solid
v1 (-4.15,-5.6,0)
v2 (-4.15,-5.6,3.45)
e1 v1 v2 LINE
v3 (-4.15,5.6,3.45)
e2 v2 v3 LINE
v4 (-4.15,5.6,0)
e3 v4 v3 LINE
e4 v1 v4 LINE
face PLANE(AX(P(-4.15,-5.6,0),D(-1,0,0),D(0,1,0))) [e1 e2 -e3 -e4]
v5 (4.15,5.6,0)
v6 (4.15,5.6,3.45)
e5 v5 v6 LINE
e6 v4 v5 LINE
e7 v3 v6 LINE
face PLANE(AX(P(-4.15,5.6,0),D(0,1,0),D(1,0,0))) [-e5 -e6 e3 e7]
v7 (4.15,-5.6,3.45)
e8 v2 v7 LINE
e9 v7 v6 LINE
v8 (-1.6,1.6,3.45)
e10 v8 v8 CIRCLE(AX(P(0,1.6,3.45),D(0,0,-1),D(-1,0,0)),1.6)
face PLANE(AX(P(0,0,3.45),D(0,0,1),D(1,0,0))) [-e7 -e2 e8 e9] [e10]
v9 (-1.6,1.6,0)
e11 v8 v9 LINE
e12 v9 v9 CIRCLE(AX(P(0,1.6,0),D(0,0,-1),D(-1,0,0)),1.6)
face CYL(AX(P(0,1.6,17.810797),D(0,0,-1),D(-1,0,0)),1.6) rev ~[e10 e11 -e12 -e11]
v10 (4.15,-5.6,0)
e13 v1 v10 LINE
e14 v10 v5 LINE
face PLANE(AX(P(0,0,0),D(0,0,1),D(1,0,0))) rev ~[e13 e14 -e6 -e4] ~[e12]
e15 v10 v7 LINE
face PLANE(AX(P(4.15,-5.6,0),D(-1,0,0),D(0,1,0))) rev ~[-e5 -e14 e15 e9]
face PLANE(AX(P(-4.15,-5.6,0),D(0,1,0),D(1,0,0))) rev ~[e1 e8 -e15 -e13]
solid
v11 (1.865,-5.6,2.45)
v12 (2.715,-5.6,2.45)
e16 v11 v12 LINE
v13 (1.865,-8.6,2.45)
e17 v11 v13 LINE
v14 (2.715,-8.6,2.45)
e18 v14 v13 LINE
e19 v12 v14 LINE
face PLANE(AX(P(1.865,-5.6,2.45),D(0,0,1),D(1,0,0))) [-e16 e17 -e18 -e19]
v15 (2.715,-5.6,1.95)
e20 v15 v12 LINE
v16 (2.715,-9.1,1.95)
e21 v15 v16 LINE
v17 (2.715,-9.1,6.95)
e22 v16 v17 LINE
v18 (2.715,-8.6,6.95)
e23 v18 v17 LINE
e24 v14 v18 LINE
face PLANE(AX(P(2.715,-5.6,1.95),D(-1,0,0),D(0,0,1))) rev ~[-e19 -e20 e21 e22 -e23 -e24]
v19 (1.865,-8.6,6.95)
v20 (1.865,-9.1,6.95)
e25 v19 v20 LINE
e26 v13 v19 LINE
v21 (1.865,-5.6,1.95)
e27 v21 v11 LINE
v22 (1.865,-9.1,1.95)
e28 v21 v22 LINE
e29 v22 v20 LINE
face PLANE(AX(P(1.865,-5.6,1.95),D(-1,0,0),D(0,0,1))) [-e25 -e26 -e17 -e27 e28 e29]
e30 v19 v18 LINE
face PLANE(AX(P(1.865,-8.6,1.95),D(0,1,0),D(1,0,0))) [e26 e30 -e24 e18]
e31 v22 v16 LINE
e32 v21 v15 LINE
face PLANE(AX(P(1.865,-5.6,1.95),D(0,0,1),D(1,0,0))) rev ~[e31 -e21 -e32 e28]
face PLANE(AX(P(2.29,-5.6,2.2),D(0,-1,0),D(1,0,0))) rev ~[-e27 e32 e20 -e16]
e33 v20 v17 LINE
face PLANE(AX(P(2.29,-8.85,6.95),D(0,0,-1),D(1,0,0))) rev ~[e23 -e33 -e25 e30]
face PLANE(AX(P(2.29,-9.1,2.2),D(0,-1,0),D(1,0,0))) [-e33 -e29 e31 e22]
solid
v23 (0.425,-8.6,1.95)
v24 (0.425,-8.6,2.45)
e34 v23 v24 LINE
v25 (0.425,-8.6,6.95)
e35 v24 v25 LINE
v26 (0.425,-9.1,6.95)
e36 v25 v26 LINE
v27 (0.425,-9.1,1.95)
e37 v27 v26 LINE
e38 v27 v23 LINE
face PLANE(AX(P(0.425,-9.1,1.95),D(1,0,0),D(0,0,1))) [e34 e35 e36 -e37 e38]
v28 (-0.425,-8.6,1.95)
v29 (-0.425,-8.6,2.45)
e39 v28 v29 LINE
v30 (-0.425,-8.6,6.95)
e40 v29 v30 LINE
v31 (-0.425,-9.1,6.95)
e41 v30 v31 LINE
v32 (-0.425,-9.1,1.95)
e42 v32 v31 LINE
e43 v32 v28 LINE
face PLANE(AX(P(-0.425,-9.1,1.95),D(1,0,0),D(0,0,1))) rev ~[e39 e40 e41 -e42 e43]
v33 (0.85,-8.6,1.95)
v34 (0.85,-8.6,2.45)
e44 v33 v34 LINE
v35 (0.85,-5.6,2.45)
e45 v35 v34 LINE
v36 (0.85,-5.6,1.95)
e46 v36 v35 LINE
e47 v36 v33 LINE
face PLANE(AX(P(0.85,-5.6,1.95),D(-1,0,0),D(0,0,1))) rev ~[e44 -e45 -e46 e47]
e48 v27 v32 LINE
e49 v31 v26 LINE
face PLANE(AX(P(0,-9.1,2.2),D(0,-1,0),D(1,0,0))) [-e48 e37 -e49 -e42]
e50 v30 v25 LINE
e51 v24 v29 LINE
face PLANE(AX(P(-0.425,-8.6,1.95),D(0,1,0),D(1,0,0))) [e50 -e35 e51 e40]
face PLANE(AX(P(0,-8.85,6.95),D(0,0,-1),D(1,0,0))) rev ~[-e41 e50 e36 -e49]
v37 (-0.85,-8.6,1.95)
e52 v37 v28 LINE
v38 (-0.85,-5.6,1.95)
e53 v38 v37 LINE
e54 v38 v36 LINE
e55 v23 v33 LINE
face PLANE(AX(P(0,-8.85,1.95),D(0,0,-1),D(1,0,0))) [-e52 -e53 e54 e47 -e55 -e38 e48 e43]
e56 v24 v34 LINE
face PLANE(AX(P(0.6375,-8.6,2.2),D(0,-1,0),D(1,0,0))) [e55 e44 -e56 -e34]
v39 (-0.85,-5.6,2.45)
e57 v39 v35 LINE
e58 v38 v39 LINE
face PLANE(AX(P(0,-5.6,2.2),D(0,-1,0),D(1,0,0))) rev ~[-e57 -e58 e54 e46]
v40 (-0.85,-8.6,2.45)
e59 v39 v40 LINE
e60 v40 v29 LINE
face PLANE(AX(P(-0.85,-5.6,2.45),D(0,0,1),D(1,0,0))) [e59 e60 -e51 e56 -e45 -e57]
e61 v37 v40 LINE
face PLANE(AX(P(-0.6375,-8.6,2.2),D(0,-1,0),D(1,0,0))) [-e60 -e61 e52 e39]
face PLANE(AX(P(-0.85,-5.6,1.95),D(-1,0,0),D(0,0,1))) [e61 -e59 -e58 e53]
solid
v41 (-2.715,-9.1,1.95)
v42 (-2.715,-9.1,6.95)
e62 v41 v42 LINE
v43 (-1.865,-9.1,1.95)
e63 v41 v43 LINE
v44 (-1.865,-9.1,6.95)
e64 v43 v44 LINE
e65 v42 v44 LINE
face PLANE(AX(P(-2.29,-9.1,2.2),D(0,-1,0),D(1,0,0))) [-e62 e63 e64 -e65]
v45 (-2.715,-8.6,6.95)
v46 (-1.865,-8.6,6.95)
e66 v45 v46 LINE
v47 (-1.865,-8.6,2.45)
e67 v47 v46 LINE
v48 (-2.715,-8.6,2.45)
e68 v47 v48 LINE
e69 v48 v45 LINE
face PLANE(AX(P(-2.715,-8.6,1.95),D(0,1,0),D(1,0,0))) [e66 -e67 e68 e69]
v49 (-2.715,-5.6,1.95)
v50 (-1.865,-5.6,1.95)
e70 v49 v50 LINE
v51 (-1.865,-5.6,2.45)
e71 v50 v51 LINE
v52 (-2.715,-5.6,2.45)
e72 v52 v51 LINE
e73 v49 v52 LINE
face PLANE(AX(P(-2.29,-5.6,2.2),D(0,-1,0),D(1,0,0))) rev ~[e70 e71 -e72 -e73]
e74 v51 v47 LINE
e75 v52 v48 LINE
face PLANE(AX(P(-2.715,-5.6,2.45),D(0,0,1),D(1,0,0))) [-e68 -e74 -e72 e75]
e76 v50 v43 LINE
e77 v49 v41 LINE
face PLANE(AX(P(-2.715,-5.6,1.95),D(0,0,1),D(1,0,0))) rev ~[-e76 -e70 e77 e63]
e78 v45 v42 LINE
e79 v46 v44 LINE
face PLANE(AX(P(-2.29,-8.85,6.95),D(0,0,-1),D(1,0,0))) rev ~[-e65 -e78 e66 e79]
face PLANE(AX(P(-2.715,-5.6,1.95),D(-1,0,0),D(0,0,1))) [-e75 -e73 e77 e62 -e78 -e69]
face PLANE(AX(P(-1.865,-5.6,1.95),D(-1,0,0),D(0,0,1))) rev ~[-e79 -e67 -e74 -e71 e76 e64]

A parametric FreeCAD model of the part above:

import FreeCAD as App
import Part
import Sketcher

doc = App.newDocument("Part")
body = doc.addObject("PartDesign::Body", "Body")

# Sketch on XY plane
sketch1 = body.newObject("Sketcher::SketchObject", "Sketch")
sketch1.AttachmentSupport = (doc.getObject("XY_Plane"), [""])
sketch1.MapMode = "FlatFace"
sketch1.addGeometry([
    Part.LineSegment(App.Vector(-4, 6, 0), App.Vector(-4, -6, 0)),
    Part.LineSegment(App.Vector(-4, -6, 0), App.Vector(4, -6, 0)),
    Part.LineSegment(App.Vector(4, -6, 0), App.Vector(4, 6, 0)),
    Part.LineSegment(App.Vector(4, 6, 0), App.Vector(-4, 6, 0)),
], False)
sketch1.addConstraint([
    Sketcher.Constraint("Coincident", 0, 2, 1, 1),
    Sketcher.Constraint("Coincident", 1, 2, 2, 1),
    Sketcher.Constraint("Coincident", 2, 2, 3, 1),
    Sketcher.Constraint("Coincident", 3, 2, 0, 1),
    Sketcher.Constraint("Vertical", 0),
    Sketcher.Constraint("Horizontal", 1),
    Sketcher.Constraint("Vertical", 2),
    Sketcher.Constraint("Horizontal", 3),
    Sketcher.Constraint("Symmetric", 0, 2, 2, 2, -1, 1),
    Sketcher.Constraint("DistanceX", 1, 1, 1, 2, 8.3),
    Sketcher.Constraint("DistanceY", 0, 2, 0, 1, 11.2),
])
pad1 = body.newObject("PartDesign::Pad", "Pad")
pad1.Profile = sketch1
pad1.Length = 3.45

# Sketch on XY plane
sketch2 = body.newObject("Sketcher::SketchObject", "Sketch001")
sketch2.AttachmentSupport = (doc.getObject("XY_Plane"), [""])
sketch2.MapMode = "FlatFace"
sketch2.AttachmentOffset = App.Placement(App.Vector(0, 0, 3.45), App.Rotation())
sketch2.addGeometry(Part.Circle(App.Vector(0, 1.6, 0), App.Vector(0, 0, 1), 1.6), False)
sketch2.addConstraint([
    Sketcher.Constraint("PointOnObject", 0, 3, -2),
    Sketcher.Constraint("Diameter", 0, 3.2),
    Sketcher.Constraint("DistanceY", -1, 1, 0, 3, 1.6),
])
doc.recompute()
hole = body.newObject("PartDesign::Hole", "Hole")
hole.Profile = sketch2
hole.ThreadType = "None"
hole.Diameter = 3.2
hole.DepthType = "ThroughAll"
body2 = doc.addObject("PartDesign::Body", "Body001")
body2.AllowCompound = True

# Sketch on XZ plane
sketch3 = body2.newObject("Sketcher::SketchObject", "Sketch002")
sketch3.AttachmentSupport = (doc.getObject("XZ_Plane001"), [""])
sketch3.MapMode = "FlatFace"
sketch3.AttachmentOffset = App.Placement(App.Vector(0, 0, 5.6), App.Rotation())
sketch3.addGeometry([
    Part.LineSegment(App.Vector(-2.7, 2.5, 0), App.Vector(-2.7, 1.9, 0)),  # 0
    Part.LineSegment(App.Vector(-2.7, 1.9, 0), App.Vector(-1.9, 1.9, 0)),  # 1
    Part.LineSegment(App.Vector(-1.9, 1.9, 0), App.Vector(-1.9, 2.5, 0)),  # 2
    Part.LineSegment(App.Vector(-1.9, 2.5, 0), App.Vector(-2.7, 2.5, 0)),  # 3
    Part.LineSegment(App.Vector(-0.8, 2.5, 0), App.Vector(-0.8, 1.9, 0)),  # 4
    Part.LineSegment(App.Vector(-0.8, 1.9, 0), App.Vector(0.8, 1.9, 0)),  # 5
    Part.LineSegment(App.Vector(0.8, 1.9, 0), App.Vector(0.8, 2.5, 0)),  # 6
    Part.LineSegment(App.Vector(0.8, 2.5, 0), App.Vector(-0.8, 2.5, 0)),  # 7
    Part.LineSegment(App.Vector(1.9, 2.5, 0), App.Vector(1.9, 1.9, 0)),  # 8
    Part.LineSegment(App.Vector(1.9, 1.9, 0), App.Vector(2.7, 1.9, 0)),  # 9
    Part.LineSegment(App.Vector(2.7, 1.9, 0), App.Vector(2.7, 2.5, 0)),  # 10
    Part.LineSegment(App.Vector(2.7, 2.5, 0), App.Vector(1.9, 2.5, 0)),  # 11
], False)
sketch3.addConstraint([
    Sketcher.Constraint("Coincident", 0, 2, 1, 1),
    Sketcher.Constraint("Coincident", 1, 2, 2, 1),
    Sketcher.Constraint("Coincident", 2, 2, 3, 1),
    Sketcher.Constraint("Coincident", 3, 2, 0, 1),
    Sketcher.Constraint("Coincident", 4, 2, 5, 1),
    Sketcher.Constraint("Coincident", 5, 2, 6, 1),
    Sketcher.Constraint("Coincident", 6, 2, 7, 1),
    Sketcher.Constraint("Coincident", 7, 2, 4, 1),
    Sketcher.Constraint("Coincident", 8, 2, 9, 1),
    Sketcher.Constraint("Coincident", 9, 2, 10, 1),
    Sketcher.Constraint("Coincident", 10, 2, 11, 1),
    Sketcher.Constraint("Coincident", 11, 2, 8, 1),
    Sketcher.Constraint("Vertical", 0),
    Sketcher.Constraint("Horizontal", 1),
    Sketcher.Constraint("Vertical", 2),
    Sketcher.Constraint("Horizontal", 3),
    Sketcher.Constraint("Vertical", 4),
    Sketcher.Constraint("Horizontal", 5),
    Sketcher.Constraint("Vertical", 6),
    Sketcher.Constraint("Horizontal", 7),
    Sketcher.Constraint("Vertical", 8),
    Sketcher.Constraint("Horizontal", 9),
    Sketcher.Constraint("Vertical", 10),
    Sketcher.Constraint("Horizontal", 11),
    Sketcher.Constraint("Symmetric", 1, 2, 8, 2, -2),
    Sketcher.Constraint("Symmetric", 3, 2, 10, 2, -2),
    Sketcher.Constraint("Horizontal", 1, 2, 4, 2),
    Sketcher.Constraint("Horizontal", 3, 2, 6, 2),
    Sketcher.Constraint("DistanceX", 5, 1, 5, 2, 1.7),
    Sketcher.Constraint("DistanceY", 0, 2, 0, 1, 0.5),
    Sketcher.Constraint("DistanceX", 1, 1, 1, 2, 0.85),
    Sketcher.Constraint("DistanceY", -1, 1, 0, 2, 1.95),
    Sketcher.Constraint("DistanceX", 4, 2, -1, 1, 0.85),
    Sketcher.Constraint("DistanceX", 1, 2, 8, 2, 3.73),
])
pad2 = body2.newObject("PartDesign::Pad", "Pad001")
pad2.Profile = sketch3
pad2.Length = 3.5

# Sketch on XY plane
sketch4 = body2.newObject("Sketcher::SketchObject", "Sketch003")
sketch4.AttachmentSupport = (doc.getObject("XY_Plane001"), [""])
sketch4.MapMode = "FlatFace"
sketch4.AttachmentOffset = App.Placement(App.Vector(0, 0, 1.95), App.Rotation())
sketch4.addGeometry([
    Part.LineSegment(App.Vector(1.9, -9.1, 0), App.Vector(1.9, -8.6, 0)),  # 0
    Part.LineSegment(App.Vector(1.9, -8.6, 0), App.Vector(2.7, -8.6, 0)),  # 1
    Part.LineSegment(App.Vector(2.7, -8.6, 0), App.Vector(2.7, -9.1, 0)),  # 2
    Part.LineSegment(App.Vector(2.7, -9.1, 0), App.Vector(1.9, -9.1, 0)),  # 3
    Part.LineSegment(App.Vector(-0.4, -9.1, 0), App.Vector(-0.4, -8.6, 0)),  # 4
    Part.LineSegment(App.Vector(-0.4, -8.6, 0), App.Vector(0.4, -8.6, 0)),  # 5
    Part.LineSegment(App.Vector(0.4, -8.6, 0), App.Vector(0.4, -9.1, 0)),  # 6
    Part.LineSegment(App.Vector(0.4, -9.1, 0), App.Vector(-0.4, -9.1, 0)),  # 7
    Part.LineSegment(App.Vector(-2.7, -9.1, 0), App.Vector(-2.7, -8.6, 0)),  # 8
    Part.LineSegment(App.Vector(-2.7, -8.6, 0), App.Vector(-1.9, -8.6, 0)),  # 9
    Part.LineSegment(App.Vector(-1.9, -8.6, 0), App.Vector(-1.9, -9.1, 0)),  # 10
    Part.LineSegment(App.Vector(-1.9, -9.1, 0), App.Vector(-2.7, -9.1, 0)),  # 11
], False)
sketch4.addConstraint([
    Sketcher.Constraint("Coincident", 0, 2, 1, 1),
    Sketcher.Constraint("Coincident", 1, 2, 2, 1),
    Sketcher.Constraint("Coincident", 2, 2, 3, 1),
    Sketcher.Constraint("Coincident", 3, 2, 0, 1),
    Sketcher.Constraint("Coincident", 4, 2, 5, 1),
    Sketcher.Constraint("Coincident", 5, 2, 6, 1),
    Sketcher.Constraint("Coincident", 6, 2, 7, 1),
    Sketcher.Constraint("Coincident", 7, 2, 4, 1),
    Sketcher.Constraint("Coincident", 8, 2, 9, 1),
    Sketcher.Constraint("Coincident", 9, 2, 10, 1),
    Sketcher.Constraint("Coincident", 10, 2, 11, 1),
    Sketcher.Constraint("Coincident", 11, 2, 8, 1),
    Sketcher.Constraint("Vertical", 0),
    Sketcher.Constraint("Horizontal", 1),
    Sketcher.Constraint("Vertical", 2),
    Sketcher.Constraint("Horizontal", 3),
    Sketcher.Constraint("Vertical", 4),
    Sketcher.Constraint("Horizontal", 5),
    Sketcher.Constraint("Vertical", 6),
    Sketcher.Constraint("Horizontal", 7),
    Sketcher.Constraint("Vertical", 8),
    Sketcher.Constraint("Horizontal", 9),
    Sketcher.Constraint("Vertical", 10),
    Sketcher.Constraint("Horizontal", 11),
    Sketcher.Constraint("Symmetric", 1, 2, 8, 2, -2),
    Sketcher.Constraint("Symmetric", 3, 2, 10, 2, -2),
    Sketcher.Constraint("Horizontal", 1, 2, 4, 2),
    Sketcher.Constraint("Horizontal", 3, 2, 6, 2),
    Sketcher.Constraint("Equal", 3, 5),
    Sketcher.Constraint("DistanceY", 0, 1, 0, 2, 0.5),
    Sketcher.Constraint("DistanceX", 1, 1, 1, 2, 0.85),
    Sketcher.Constraint("DistanceY", 0, 2, -1, 1, 8.6),
    Sketcher.Constraint("DistanceX", 4, 2, 0, 2, 2.29),
    Sketcher.Constraint("DistanceX", 8, 2, 4, 2, 2.29),
])
pad3 = body2.newObject("PartDesign::Pad", "Pad002")
pad3.Profile = sketch4
pad3.Length = 5

# Sketch on XZ plane
sketch5 = body2.newObject("Sketcher::SketchObject", "Sketch004")
sketch5.AttachmentSupport = (doc.getObject("XZ_Plane001"), [""])
sketch5.MapMode = "FlatFace"
sketch5.AttachmentOffset = App.Placement(App.Vector(0, 0, 9.1), App.Rotation())
sketch5.addGeometry([
    Part.LineSegment(App.Vector(-0.85, 2.45, 0), App.Vector(-0.85, 1.95, 0)),  # 0
    Part.LineSegment(App.Vector(-0.85, 1.95, 0), App.Vector(-0.42, 1.95, 0)),  # 1
    Part.LineSegment(App.Vector(-0.42, 1.95, 0), App.Vector(-0.42, 2.45, 0)),  # 2
    Part.LineSegment(App.Vector(-0.42, 2.45, 0), App.Vector(-0.85, 2.45, 0)),  # 3
    Part.LineSegment(App.Vector(0.42, 2.45, 0), App.Vector(0.42, 1.95, 0)),  # 4
    Part.LineSegment(App.Vector(0.42, 1.95, 0), App.Vector(0.85, 1.95, 0)),  # 5
    Part.LineSegment(App.Vector(0.85, 1.95, 0), App.Vector(0.85, 2.45, 0)),  # 6
    Part.LineSegment(App.Vector(0.85, 2.45, 0), App.Vector(0.42, 2.45, 0)),  # 7
], False)
sketch5.addConstraint([
    Sketcher.Constraint("Coincident", 0, 2, 1, 1),
    Sketcher.Constraint("Coincident", 1, 2, 2, 1),
    Sketcher.Constraint("Coincident", 2, 2, 3, 1),
    Sketcher.Constraint("Coincident", 3, 2, 0, 1),
    Sketcher.Constraint("Coincident", 4, 2, 5, 1),
    Sketcher.Constraint("Coincident", 5, 2, 6, 1),
    Sketcher.Constraint("Coincident", 6, 2, 7, 1),
    Sketcher.Constraint("Coincident", 7, 2, 4, 1),
    Sketcher.Constraint("Vertical", 0),
    Sketcher.Constraint("Horizontal", 1),
    Sketcher.Constraint("Vertical", 2),
    Sketcher.Constraint("Horizontal", 3),
    Sketcher.Constraint("Vertical", 4),
    Sketcher.Constraint("Horizontal", 5),
    Sketcher.Constraint("Vertical", 6),
    Sketcher.Constraint("Horizontal", 7),
    Sketcher.Constraint("Symmetric", 1, 2, 4, 2, -2),
    Sketcher.Constraint("Symmetric", 3, 2, 6, 2, -2),
    Sketcher.Constraint("DistanceY", 0, 2, 0, 1, 0.5),
    Sketcher.Constraint("DistanceX", 0, 2, 5, 2, 1.7),
    Sketcher.Constraint("DistanceX", 1, 1, 1, 2, 0.425),
    Sketcher.Constraint("DistanceY", -1, 1, 0, 2, 1.95),
])
pocket1 = body2.newObject("PartDesign::Pocket", "Pocket")
pocket1.Profile = sketch5
pocket1.Length = 0.5

doc.recompute()
